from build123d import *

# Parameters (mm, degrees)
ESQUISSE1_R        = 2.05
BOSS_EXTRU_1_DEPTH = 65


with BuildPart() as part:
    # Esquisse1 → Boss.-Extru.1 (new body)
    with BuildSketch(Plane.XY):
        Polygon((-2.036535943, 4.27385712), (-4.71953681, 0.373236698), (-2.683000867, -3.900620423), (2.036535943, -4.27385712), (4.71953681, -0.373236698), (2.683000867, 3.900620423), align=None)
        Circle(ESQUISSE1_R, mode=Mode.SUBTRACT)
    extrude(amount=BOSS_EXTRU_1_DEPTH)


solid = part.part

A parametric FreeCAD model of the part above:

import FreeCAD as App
import Part
import Sketcher


def add_polygon(sketch, points):
    """Adds a closed chain of lines whose ends are joined by coincident constraints."""
    first, n = sketch.GeometryCount, len(points)
    for a, b in zip(points, points[1:] + points[:1]):
        sketch.addGeometry(Part.LineSegment(App.Vector(*a, 0), App.Vector(*b, 0)), False)
    for i in range(n):
        sketch.addConstraint(Sketcher.Constraint("Coincident", first + i, 2, first + (i + 1) % n, 1))

doc = App.newDocument("Part")
body = doc.addObject("PartDesign::Body", "Body")

sketch1 = doc.addObject("Sketcher::SketchObject", "Sketch")
body.addObject(sketch1)
sketch1.AttachmentSupport = (doc.XY_Plane, [""])
sketch1.MapMode = "FlatFace"
add_polygon(sketch1, [(-2, 4.3), (-4.7, 0.4), (-2.7, -3.9), (2, -4.3), (4.7, -0.4), (2.7, 3.9)])
sketch1.addGeometry(Part.Circle(App.Vector(0, 0, 0), App.Vector(0, 0, 1), 2), False)
sketch1.addConstraint(Sketcher.Constraint("Coincident", 6, 3, -1, 1))
sketch1.addConstraint(Sketcher.Constraint("Symmetric", 0, 2, 3, 2, -1, 1))
sketch1.addConstraint(Sketcher.Constraint("Symmetric", 1, 2, 4, 2, -1, 1))
sketch1.addConstraint(Sketcher.Constraint("Symmetric", 2, 2, 5, 2, -1, 1))
sketch1.addConstraint(Sketcher.Constraint("Equal", 0, 1))
sketch1.addConstraint(Sketcher.Constraint("Equal", 1, 2))
sketch1.addConstraint(Sketcher.Constraint("Diameter", 6, 4.1))
sketch1.addConstraint(Sketcher.Constraint("DistanceX", 1, 2, -1, 1, 2.683001))
sketch1.addConstraint(Sketcher.Constraint("DistanceX", 2, 2, 3, 2, 2.683001))
sketch1.addConstraint(Sketcher.Constraint("DistanceY", 1, 2, -1, 1, 3.90062))
sketch1.addConstraint(Sketcher.Constraint("DistanceY", 2, 2, 3, 2, 3.90062))
pad1 = doc.addObject("PartDesign::Pad", "Pad")
body.addObject(pad1)
pad1.Profile = sketch1
pad1.Length = 65

doc.recompute()
